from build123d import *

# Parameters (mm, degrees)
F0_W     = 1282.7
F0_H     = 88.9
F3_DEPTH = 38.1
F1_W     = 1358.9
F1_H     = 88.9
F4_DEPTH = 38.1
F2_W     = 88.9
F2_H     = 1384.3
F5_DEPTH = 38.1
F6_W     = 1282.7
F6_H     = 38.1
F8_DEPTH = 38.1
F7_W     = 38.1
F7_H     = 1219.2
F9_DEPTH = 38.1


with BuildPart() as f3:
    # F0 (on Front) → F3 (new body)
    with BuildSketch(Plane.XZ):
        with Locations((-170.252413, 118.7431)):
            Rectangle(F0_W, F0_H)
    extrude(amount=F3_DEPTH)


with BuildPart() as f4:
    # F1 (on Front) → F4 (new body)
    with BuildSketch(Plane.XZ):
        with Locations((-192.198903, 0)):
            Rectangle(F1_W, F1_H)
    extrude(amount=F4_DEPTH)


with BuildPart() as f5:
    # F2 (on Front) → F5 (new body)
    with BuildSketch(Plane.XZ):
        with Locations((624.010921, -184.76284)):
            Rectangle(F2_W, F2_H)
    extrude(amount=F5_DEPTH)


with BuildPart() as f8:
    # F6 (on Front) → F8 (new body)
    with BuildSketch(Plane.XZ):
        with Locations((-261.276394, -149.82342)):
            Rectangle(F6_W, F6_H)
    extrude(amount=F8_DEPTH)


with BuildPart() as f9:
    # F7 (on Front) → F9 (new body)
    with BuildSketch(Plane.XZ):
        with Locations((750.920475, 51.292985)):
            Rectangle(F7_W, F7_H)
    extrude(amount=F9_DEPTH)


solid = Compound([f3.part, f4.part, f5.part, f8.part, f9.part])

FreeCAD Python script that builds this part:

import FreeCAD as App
import Part
import Sketcher
Q = App.Units.Quantity


def add_polygon(sketch, points):
    """Adds a closed chain of lines whose ends are joined by coincident constraints."""
    first, n = sketch.GeometryCount, len(points)
    for a, b in zip(points, points[1:] + points[:1]):
        sketch.addGeometry(Part.LineSegment(App.Vector(*a, 0), App.Vector(*b, 0)), False)
    for i in range(n):
        sketch.addConstraint(Sketcher.Constraint("Coincident", first + i, 2, first + (i + 1) % n, 1))

doc = App.newDocument("Part")
params = doc.addObject("Spreadsheet::Sheet", "Params")
for row, (alias, value) in enumerate([
    ("sketch1_width", "50.5 in"),
    ("sketch1_height", "3.5 in"),
    ("pad1_length", "1.5 in"),
    ("sketch2_width", "53.5 in"),
    ("sketch2_height", "3.5 in"),
    ("pad2_length", "1.5 in"),
    ("sketch3_width", "3.5 in"),
    ("sketch3_height", "54.5 in"),
    ("pad3_length", "1.5 in"),
    ("sketch4_width", "50.5 in"),
    ("sketch4_height", "1.5 in"),
    ("pad4_length", "1.5 in"),
    ("sketch5_height", "48 in"),
    ("sketch5_width", "1.5 in"),
    ("pad5_length", "1.5 in"),
], start=1):
    params.set(f"A{row}", alias)
    params.set(f"B{row}", "=" + value)
    params.setAlias(f"B{row}", alias)

body = doc.addObject("PartDesign::Body", "Body")

sketch1 = body.newObject("Sketcher::SketchObject", "Sketch")
sketch1.AttachmentSupport = (doc.getObject("XZ_Plane"), [""])
sketch1.MapMode = "FlatFace"
add_polygon(sketch1, [(-812, 163), (-812, 74), (471, 74), (471, 163)])
sketch1.addConstraint(Sketcher.Constraint("Vertical", 0))
sketch1.addConstraint(Sketcher.Constraint("Horizontal", 1))
sketch1.addConstraint(Sketcher.Constraint("Vertical", 2))
sketch1.addConstraint(Sketcher.Constraint("Horizontal", 3))
sketch1.addConstraint(Sketcher.Constraint("DistanceX", 1, 1, 1, 2, Q("50.5 in")))
sketch1.addConstraint(Sketcher.Constraint("DistanceY", 0, 2, 0, 1, Q("3.5 in")))
sketch1.addConstraint(Sketcher.Constraint("DistanceY", -1, 1, 0, 2, 74.2931))
sketch1.addConstraint(Sketcher.Constraint("DistanceX", 0, 2, -1, 1, 811.602413))
sketch1.setExpression("Constraints[8]", "Params.sketch1_width")
sketch1.setExpression("Constraints[9]", "Params.sketch1_height")
pad1 = body.newObject("PartDesign::Pad", "Pad")
pad1.Profile = sketch1
pad1.setExpression("Length", "Params.pad1_length")
body2 = doc.addObject("PartDesign::Body", "Body001")

sketch2 = body2.newObject("Sketcher::SketchObject", "Sketch001")
sketch2.AttachmentSupport = (doc.getObject("XZ_Plane001"), [""])
sketch2.MapMode = "FlatFace"
add_polygon(sketch2, [(-872, 44), (-872, -44), (487, -44), (487, 44)])
sketch2.addConstraint(Sketcher.Constraint("Vertical", 0))
sketch2.addConstraint(Sketcher.Constraint("Horizontal", 1))
sketch2.addConstraint(Sketcher.Constraint("Vertical", 2))
sketch2.addConstraint(Sketcher.Constraint("Horizontal", 3))
sketch2.addConstraint(Sketcher.Constraint("DistanceX", 1, 1, 1, 2, Q("53.5 in")))
sketch2.addConstraint(Sketcher.Constraint("DistanceY", 0, 2, 0, 1, Q("3.5 in")))
sketch2.addConstraint(Sketcher.Constraint("DistanceY", 0, 2, -1, 1, Q("1.75 in")))
sketch2.addConstraint(Sketcher.Constraint("DistanceX", 0, 2, -1, 1, 871.648903))
sketch2.setExpression("Constraints[8]", "Params.sketch2_width")
sketch2.setExpression("Constraints[9]", "Params.sketch2_height")
pad2 = body2.newObject("PartDesign::Pad", "Pad001")
pad2.Profile = sketch2
pad2.setExpression("Length", "Params.pad2_length")
body3 = doc.addObject("PartDesign::Body", "Body002")

sketch3 = body3.newObject("Sketcher::SketchObject", "Sketch002")
sketch3.AttachmentSupport = (doc.getObject("XZ_Plane002"), [""])
sketch3.MapMode = "FlatFace"
add_polygon(sketch3, [(580, 507), (580, -877), (668, -877), (668, 507)])
sketch3.addConstraint(Sketcher.Constraint("Vertical", 0))
sketch3.addConstraint(Sketcher.Constraint("Horizontal", 1))
sketch3.addConstraint(Sketcher.Constraint("Vertical", 2))
sketch3.addConstraint(Sketcher.Constraint("Horizontal", 3))
sketch3.addConstraint(Sketcher.Constraint("DistanceX", 1, 1, 1, 2, Q("3.5 in")))
sketch3.addConstraint(Sketcher.Constraint("DistanceY", 0, 2, 0, 1, Q("54.5 in")))
sketch3.addConstraint(Sketcher.Constraint("DistanceX", -1, 1, 0, 2, 579.560921))
sketch3.addConstraint(Sketcher.Constraint("DistanceY", 0, 2, -1, 1, 876.91284))
sketch3.setExpression("Constraints[8]", "Params.sketch3_width")
sketch3.setExpression("Constraints[9]", "Params.sketch3_height")
pad3 = body3.newObject("PartDesign::Pad", "Pad002")
pad3.Profile = sketch3
pad3.setExpression("Length", "Params.pad3_length")
body4 = doc.addObject("PartDesign::Body", "Body003")

sketch4 = body4.newObject("Sketcher::SketchObject", "Sketch003")
sketch4.AttachmentSupport = (doc.getObject("XZ_Plane003"), [""])
sketch4.MapMode = "FlatFace"
add_polygon(sketch4, [(-903, -131), (-903, -169), (380, -169), (380, -131)])
sketch4.addConstraint(Sketcher.Constraint("Vertical", 0))
sketch4.addConstraint(Sketcher.Constraint("Horizontal", 1))
sketch4.addConstraint(Sketcher.Constraint("Vertical", 2))
sketch4.addConstraint(Sketcher.Constraint("Horizontal", 3))
sketch4.addConstraint(Sketcher.Constraint("DistanceX", 1, 1, 1, 2, Q("50.5 in")))
sketch4.addConstraint(Sketcher.Constraint("DistanceY", 0, 2, 0, 1, Q("1.5 in")))
sketch4.addConstraint(Sketcher.Constraint("DistanceY", 0, 2, -1, 1, 168.87342))
sketch4.addConstraint(Sketcher.Constraint("DistanceX", 0, 2, -1, 1, 902.626394))
sketch4.setExpression("Constraints[8]", "Params.sketch4_width")
sketch4.setExpression("Constraints[9]", "Params.sketch4_height")
pad4 = body4.newObject("PartDesign::Pad", "Pad003")
pad4.Profile = sketch4
pad4.setExpression("Length", "Params.pad4_length")
body5 = doc.addObject("PartDesign::Body", "Body004")

sketch5 = body5.newObject("Sketcher::SketchObject", "Sketch004")
sketch5.AttachmentSupport = (doc.getObject("XZ_Plane004"), [""])
sketch5.MapMode = "FlatFace"
add_polygon(sketch5, [(732, 661), (732, -558), (770, -558), (770, 661)])
sketch5.addConstraint(Sketcher.Constraint("Vertical", 0))
sketch5.addConstraint(Sketcher.Constraint("Horizontal", 1))
sketch5.addConstraint(Sketcher.Constraint("Vertical", 2))
sketch5.addConstraint(Sketcher.Constraint("Horizontal", 3))
sketch5.addConstraint(Sketcher.Constraint("DistanceY", 0, 2, 0, 1, Q("48 in")))
sketch5.addConstraint(Sketcher.Constraint("DistanceX", 1, 1, 1, 2, Q("1.5 in")))
sketch5.addConstraint(Sketcher.Constraint("DistanceX", -1, 1, 0, 2, 731.870475))
sketch5.addConstraint(Sketcher.Constraint("DistanceY", 0, 2, -1, 1, 558.307015))
sketch5.setExpression("Constraints[8]", "Params.sketch5_height")
sketch5.setExpression("Constraints[9]", "Params.sketch5_width")
pad5 = body5.newObject("PartDesign::Pad", "Pad004")
pad5.Profile = sketch5
pad5.setExpression("Length", "Params.pad5_length")

doc.recompute()
